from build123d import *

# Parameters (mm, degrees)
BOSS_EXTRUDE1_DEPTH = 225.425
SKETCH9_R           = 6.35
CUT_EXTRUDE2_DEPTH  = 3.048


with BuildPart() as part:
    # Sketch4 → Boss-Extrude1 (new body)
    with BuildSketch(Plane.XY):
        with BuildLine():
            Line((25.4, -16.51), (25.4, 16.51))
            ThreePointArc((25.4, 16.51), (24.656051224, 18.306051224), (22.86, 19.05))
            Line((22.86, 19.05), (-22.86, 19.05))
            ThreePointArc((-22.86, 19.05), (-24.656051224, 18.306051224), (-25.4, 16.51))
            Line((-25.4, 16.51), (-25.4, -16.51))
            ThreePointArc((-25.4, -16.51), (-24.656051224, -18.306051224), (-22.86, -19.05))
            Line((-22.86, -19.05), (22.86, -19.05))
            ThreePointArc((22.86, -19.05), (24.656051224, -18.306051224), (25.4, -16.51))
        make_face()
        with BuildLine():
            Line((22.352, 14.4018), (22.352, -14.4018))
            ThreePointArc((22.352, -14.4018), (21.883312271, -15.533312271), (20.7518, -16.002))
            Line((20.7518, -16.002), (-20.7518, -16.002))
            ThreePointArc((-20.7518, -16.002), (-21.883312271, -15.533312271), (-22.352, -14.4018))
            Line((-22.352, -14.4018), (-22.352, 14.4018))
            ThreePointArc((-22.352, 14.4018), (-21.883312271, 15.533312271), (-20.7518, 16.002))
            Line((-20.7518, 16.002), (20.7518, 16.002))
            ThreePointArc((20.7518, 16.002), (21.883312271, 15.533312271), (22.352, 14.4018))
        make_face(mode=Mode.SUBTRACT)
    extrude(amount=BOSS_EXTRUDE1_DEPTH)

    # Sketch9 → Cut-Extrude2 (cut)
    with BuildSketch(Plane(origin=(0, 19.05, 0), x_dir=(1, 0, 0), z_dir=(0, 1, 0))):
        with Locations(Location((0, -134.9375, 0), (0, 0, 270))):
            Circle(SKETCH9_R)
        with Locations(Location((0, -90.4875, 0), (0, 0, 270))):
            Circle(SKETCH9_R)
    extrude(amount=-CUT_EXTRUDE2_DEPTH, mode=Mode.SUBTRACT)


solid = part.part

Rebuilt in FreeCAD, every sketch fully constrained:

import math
import FreeCAD as App
import Part
import Sketcher
from FreeCAD import Vector
Q = App.Units.Quantity

doc = App.newDocument("Part")
body = doc.addObject("PartDesign::Body", "Body")

# Sketch on XY plane
sketch1 = body.newObject("Sketcher::SketchObject", "Sketch")
sketch1.AttachmentSupport = (doc.getObject("XY_Plane"), [""])
sketch1.MapMode = "FlatFace"
sketch1.addGeometry(Part.LineSegment(Vector(25.4, -16.5, 0), Vector(25.4, 16.5, 0)), False)
sketch1.addGeometry(Part.ArcOfCircle(Part.Circle(Vector(22.9, 16.5, 0), Vector(0, 0, 1), 2.5), math.radians(0), math.radians(90)), False)
sketch1.addGeometry(Part.LineSegment(Vector(22.9, 19.1, 0), Vector(-22.9, 19.1, 0)), False)
sketch1.addGeometry(Part.ArcOfCircle(Part.Circle(Vector(-22.9, 16.5, 0), Vector(0, 0, 1), 2.5), math.radians(90), math.radians(180)), False)
sketch1.addGeometry(Part.LineSegment(Vector(-25.4, 16.5, 0), Vector(-25.4, -16.5, 0)), False)
sketch1.addGeometry(Part.ArcOfCircle(Part.Circle(Vector(-22.9, -16.5, 0), Vector(0, 0, 1), 2.5), math.radians(-180), math.radians(-90)), False)
sketch1.addGeometry(Part.LineSegment(Vector(-22.9, -19.1, 0), Vector(22.9, -19.1, 0)), False)
sketch1.addGeometry(Part.ArcOfCircle(Part.Circle(Vector(22.9, -16.5, 0), Vector(0, 0, 1), 2.5), math.radians(-90), math.radians(0)), False)
sketch1.addGeometry(Part.ArcOfCircle(Part.Circle(Vector(20.8, 14.4, 0), Vector(0, 0, 1), 1.6), math.radians(0), math.radians(90)), False)
sketch1.addGeometry(Part.LineSegment(Vector(22.4, 14.4, 0), Vector(22.4, -14.4, 0)), False)
sketch1.addGeometry(Part.ArcOfCircle(Part.Circle(Vector(20.8, -14.4, 0), Vector(0, 0, 1), 1.6), math.radians(-90), math.radians(0)), False)
sketch1.addGeometry(Part.LineSegment(Vector(20.8, -16, 0), Vector(-20.8, -16, 0)), False)
sketch1.addGeometry(Part.ArcOfCircle(Part.Circle(Vector(-20.8, -14.4, 0), Vector(0, 0, 1), 1.6), math.radians(-180), math.radians(-90)), False)
sketch1.addGeometry(Part.LineSegment(Vector(-22.4, -14.4, 0), Vector(-22.4, 14.4, 0)), False)
sketch1.addGeometry(Part.ArcOfCircle(Part.Circle(Vector(-20.8, 14.4, 0), Vector(0, 0, 1), 1.6), math.radians(90), math.radians(180)), False)
sketch1.addGeometry(Part.LineSegment(Vector(-20.8, 16, 0), Vector(20.8, 16, 0)), False)
sketch1.addConstraint(Sketcher.Constraint("Tangent", 0, 2, 1, 1))
sketch1.addConstraint(Sketcher.Constraint("Tangent", 1, 2, 2, 1))
sketch1.addConstraint(Sketcher.Constraint("Tangent", 2, 2, 3, 1))
sketch1.addConstraint(Sketcher.Constraint("Tangent", 3, 2, 4, 1))
sketch1.addConstraint(Sketcher.Constraint("Tangent", 4, 2, 5, 1))
sketch1.addConstraint(Sketcher.Constraint("Tangent", 5, 2, 6, 1))
sketch1.addConstraint(Sketcher.Constraint("Tangent", 6, 2, 7, 1))
sketch1.addConstraint(Sketcher.Constraint("Tangent", 7, 2, 0, 1))
sketch1.addConstraint(Sketcher.Constraint("Tangent", 8, 1, 9, 1))
sketch1.addConstraint(Sketcher.Constraint("Tangent", 9, 2, 10, 2))
sketch1.addConstraint(Sketcher.Constraint("Tangent", 10, 1, 11, 1))
sketch1.addConstraint(Sketcher.Constraint("Tangent", 11, 2, 12, 2))
sketch1.addConstraint(Sketcher.Constraint("Tangent", 12, 1, 13, 1))
sketch1.addConstraint(Sketcher.Constraint("Tangent", 13, 2, 14, 2))
sketch1.addConstraint(Sketcher.Constraint("Tangent", 14, 1, 15, 1))
sketch1.addConstraint(Sketcher.Constraint("Tangent", 15, 2, 8, 2))
sketch1.addConstraint(Sketcher.Constraint("Vertical", 0))
sketch1.addConstraint(Sketcher.Constraint("Horizontal", 2))
sketch1.addConstraint(Sketcher.Constraint("Vertical", 4))
sketch1.addConstraint(Sketcher.Constraint("Horizontal", 6))
sketch1.addConstraint(Sketcher.Constraint("Vertical", 9))
sketch1.addConstraint(Sketcher.Constraint("Horizontal", 11))
sketch1.addConstraint(Sketcher.Constraint("Vertical", 13))
sketch1.addConstraint(Sketcher.Constraint("Horizontal", 15))
sketch1.addConstraint(Sketcher.Constraint("Equal", 1, 3))
sketch1.addConstraint(Sketcher.Constraint("Equal", 3, 5))
sketch1.addConstraint(Sketcher.Constraint("Equal", 5, 7))
sketch1.addConstraint(Sketcher.Constraint("Equal", 8, 10))
sketch1.addConstraint(Sketcher.Constraint("Equal", 10, 12))
sketch1.addConstraint(Sketcher.Constraint("Equal", 12, 14))
sketch1.addConstraint(Sketcher.Constraint("Symmetric", 1, 3, 5, 3, -1, 1))
sketch1.addConstraint(Sketcher.Constraint("Symmetric", 8, 3, 12, 3, -1, 1))
sketch1.addConstraint(Sketcher.Constraint("Radius", 1, Q("0.1 in")))
sketch1.addConstraint(Sketcher.Constraint("DistanceX", 2, 2, 2, 1, Q("1.8 in")))
sketch1.addConstraint(Sketcher.Constraint("DistanceY", 0, 1, 0, 2, Q("1.3 in")))
sketch1.addConstraint(Sketcher.Constraint("Radius", 8, Q("0.063 in")))
sketch1.addConstraint(Sketcher.Constraint("DistanceX", 11, 2, 11, 1, Q("1.634 in")))
sketch1.addConstraint(Sketcher.Constraint("DistanceY", 9, 2, 9, 1, Q("1.134 in")))
pad1 = body.newObject("PartDesign::Pad", "Pad")
pad1.Profile = sketch1
pad1.Length = Q("8.875 in")

# Sketch on XZ plane
sketch2 = body.newObject("Sketcher::SketchObject", "Sketch001")
sketch2.AttachmentSupport = (doc.getObject("XZ_Plane"), [""])
sketch2.MapMode = "FlatFace"
sketch2.AttachmentOffset = App.Placement(Vector(0, 0, -0.75 * 25.4), App.Rotation())
sketch2.addGeometry(Part.Circle(Vector(0, 135, 0), Vector(0, 0, 1), 6), False)
sketch2.addGeometry(Part.Circle(Vector(0, 90, 0), Vector(0, 0, 1), 6), False)
sketch2.addConstraint(Sketcher.Constraint("Equal", 0, 1))
sketch2.addConstraint(Sketcher.Constraint("PointOnObject", 0, 3, -2))
sketch2.addConstraint(Sketcher.Constraint("PointOnObject", 1, 3, -2))
sketch2.addConstraint(Sketcher.Constraint("Diameter", 0, Q("0.5 in")))
sketch2.addConstraint(Sketcher.Constraint("DistanceY", 1, 3, 0, 3, Q("1.75 in")))
sketch2.addConstraint(Sketcher.Constraint("DistanceY", -1, 1, 0, 3, Q("5.3125 in")))
pocket1 = body.newObject("PartDesign::Pocket", "Pocket")
pocket1.Profile = sketch2
pocket1.Length = Q("0.12 in")
pocket1.Reversed = True

doc.recompute()
